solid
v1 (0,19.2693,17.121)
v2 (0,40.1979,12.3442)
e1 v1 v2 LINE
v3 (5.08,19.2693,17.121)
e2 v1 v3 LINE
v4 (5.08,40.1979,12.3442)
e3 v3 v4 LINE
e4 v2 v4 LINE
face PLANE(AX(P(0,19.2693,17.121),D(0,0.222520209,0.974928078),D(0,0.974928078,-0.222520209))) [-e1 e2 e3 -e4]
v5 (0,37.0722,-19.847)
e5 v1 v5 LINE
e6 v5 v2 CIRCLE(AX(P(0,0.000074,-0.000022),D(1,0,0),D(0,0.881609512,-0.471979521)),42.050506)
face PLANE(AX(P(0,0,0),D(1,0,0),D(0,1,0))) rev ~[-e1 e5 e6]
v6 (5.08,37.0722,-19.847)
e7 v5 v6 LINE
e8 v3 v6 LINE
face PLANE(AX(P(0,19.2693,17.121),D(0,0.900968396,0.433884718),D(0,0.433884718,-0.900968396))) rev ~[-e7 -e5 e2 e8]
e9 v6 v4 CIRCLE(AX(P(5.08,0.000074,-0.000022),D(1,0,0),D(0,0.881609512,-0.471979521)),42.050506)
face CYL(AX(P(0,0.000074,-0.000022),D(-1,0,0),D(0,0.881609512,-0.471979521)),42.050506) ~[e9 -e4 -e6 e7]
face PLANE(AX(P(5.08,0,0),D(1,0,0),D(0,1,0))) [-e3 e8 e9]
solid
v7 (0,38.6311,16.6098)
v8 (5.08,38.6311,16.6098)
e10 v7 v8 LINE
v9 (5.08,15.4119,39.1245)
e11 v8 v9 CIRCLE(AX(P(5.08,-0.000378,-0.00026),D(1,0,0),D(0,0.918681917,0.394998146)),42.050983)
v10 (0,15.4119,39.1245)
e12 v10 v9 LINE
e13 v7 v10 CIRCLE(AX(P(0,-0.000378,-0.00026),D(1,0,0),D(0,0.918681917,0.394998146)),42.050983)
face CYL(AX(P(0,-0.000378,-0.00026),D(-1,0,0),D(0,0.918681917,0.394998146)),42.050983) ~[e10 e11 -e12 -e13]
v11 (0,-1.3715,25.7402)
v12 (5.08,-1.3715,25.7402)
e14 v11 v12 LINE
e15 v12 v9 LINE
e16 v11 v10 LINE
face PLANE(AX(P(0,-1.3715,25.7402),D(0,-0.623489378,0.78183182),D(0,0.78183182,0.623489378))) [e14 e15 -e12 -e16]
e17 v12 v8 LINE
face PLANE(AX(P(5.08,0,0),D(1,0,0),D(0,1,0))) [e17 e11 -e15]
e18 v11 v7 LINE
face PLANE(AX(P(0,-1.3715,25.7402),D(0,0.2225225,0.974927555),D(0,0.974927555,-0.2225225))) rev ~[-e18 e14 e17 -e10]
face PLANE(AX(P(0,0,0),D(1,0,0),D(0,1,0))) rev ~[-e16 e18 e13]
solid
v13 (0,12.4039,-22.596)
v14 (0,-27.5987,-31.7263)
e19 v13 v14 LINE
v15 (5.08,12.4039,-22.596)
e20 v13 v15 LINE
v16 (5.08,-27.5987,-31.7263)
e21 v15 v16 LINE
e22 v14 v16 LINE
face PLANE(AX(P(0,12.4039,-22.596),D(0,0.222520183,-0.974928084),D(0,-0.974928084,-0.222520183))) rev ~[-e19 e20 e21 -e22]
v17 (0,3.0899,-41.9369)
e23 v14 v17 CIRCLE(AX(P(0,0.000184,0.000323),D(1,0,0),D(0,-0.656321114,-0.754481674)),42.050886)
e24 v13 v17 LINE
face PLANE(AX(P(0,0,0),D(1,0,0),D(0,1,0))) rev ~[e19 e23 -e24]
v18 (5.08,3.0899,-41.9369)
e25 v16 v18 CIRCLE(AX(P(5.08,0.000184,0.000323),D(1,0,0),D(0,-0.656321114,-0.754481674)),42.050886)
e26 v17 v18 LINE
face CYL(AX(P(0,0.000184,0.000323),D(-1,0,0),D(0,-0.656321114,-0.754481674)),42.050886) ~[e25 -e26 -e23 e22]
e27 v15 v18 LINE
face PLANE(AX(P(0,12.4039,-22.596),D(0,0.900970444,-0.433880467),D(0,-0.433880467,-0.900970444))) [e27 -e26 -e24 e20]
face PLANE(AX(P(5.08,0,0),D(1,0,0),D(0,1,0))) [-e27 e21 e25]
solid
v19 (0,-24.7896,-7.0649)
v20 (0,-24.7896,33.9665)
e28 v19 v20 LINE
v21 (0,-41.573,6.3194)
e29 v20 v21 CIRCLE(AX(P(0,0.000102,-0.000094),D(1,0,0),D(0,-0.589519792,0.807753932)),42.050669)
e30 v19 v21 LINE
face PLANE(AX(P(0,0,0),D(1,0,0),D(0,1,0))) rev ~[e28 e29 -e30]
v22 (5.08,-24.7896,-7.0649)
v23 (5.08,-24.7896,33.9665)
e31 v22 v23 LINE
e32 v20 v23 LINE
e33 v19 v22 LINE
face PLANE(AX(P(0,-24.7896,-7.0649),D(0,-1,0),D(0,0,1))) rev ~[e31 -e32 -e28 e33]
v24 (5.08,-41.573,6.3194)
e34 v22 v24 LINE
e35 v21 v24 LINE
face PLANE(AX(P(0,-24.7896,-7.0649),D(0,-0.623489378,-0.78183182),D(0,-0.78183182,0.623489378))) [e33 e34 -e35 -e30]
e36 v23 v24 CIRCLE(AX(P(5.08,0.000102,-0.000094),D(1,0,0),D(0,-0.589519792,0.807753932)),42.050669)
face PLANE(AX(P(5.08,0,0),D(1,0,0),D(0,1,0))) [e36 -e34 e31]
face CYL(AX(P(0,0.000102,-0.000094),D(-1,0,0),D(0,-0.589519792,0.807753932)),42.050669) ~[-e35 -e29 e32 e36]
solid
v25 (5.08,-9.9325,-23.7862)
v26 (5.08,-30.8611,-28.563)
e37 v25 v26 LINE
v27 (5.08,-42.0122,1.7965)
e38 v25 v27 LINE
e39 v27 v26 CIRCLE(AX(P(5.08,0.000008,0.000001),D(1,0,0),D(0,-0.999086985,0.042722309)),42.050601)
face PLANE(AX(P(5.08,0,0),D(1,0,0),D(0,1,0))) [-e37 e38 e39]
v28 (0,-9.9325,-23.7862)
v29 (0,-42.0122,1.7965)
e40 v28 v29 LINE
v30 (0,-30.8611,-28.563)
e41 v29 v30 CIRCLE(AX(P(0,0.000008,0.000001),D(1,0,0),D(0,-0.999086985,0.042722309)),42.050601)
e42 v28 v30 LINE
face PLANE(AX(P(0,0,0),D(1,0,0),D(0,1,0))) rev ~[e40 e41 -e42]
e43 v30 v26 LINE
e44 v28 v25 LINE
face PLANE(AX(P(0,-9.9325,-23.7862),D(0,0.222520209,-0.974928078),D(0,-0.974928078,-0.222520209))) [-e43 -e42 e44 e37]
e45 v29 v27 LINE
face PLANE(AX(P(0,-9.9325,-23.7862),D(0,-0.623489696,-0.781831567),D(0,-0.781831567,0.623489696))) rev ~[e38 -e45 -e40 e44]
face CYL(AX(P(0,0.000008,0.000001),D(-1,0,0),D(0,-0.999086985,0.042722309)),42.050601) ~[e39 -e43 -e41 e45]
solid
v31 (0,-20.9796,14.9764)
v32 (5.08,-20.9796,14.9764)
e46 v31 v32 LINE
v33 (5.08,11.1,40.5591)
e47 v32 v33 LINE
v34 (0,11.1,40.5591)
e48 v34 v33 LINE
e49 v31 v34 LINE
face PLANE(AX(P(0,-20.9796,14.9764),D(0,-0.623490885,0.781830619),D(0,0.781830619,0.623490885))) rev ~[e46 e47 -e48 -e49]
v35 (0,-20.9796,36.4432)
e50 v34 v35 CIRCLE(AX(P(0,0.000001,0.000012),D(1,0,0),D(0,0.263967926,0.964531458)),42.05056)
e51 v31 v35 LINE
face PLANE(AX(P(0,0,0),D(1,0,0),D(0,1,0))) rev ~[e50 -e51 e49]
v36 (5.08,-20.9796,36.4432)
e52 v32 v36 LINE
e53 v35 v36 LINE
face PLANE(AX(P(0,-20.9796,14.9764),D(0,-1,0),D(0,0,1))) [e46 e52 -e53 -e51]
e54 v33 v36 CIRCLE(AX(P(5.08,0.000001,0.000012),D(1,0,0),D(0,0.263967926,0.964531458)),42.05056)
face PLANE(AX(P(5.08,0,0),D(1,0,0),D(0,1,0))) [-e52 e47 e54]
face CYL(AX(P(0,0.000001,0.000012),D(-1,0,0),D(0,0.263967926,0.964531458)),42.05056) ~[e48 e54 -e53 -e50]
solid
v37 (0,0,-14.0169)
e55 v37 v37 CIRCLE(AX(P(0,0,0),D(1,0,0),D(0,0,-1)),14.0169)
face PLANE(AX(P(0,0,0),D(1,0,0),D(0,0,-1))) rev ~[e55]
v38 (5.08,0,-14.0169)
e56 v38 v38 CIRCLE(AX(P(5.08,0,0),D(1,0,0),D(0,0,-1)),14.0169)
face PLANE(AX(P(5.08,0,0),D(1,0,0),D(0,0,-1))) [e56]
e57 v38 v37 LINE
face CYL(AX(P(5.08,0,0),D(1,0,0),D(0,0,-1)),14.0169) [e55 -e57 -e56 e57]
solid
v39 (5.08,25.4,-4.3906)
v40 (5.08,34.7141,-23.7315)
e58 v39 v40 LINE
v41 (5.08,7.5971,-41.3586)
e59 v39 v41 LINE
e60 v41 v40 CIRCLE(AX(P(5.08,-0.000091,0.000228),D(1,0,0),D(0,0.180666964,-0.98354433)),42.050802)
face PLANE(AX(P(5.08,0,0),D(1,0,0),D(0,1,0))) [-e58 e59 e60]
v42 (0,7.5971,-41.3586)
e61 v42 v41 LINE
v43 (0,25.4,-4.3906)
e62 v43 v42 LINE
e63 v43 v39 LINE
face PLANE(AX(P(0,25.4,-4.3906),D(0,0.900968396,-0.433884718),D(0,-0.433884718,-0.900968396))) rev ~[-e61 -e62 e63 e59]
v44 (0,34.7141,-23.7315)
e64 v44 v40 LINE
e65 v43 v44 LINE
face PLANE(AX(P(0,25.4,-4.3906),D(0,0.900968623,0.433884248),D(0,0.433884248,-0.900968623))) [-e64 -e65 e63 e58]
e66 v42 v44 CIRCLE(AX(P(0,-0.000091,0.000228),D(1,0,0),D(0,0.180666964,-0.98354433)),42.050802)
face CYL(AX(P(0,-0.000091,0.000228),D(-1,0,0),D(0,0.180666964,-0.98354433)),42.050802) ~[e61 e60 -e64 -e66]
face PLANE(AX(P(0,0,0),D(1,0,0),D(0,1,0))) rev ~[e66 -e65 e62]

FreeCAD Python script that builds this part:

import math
import FreeCAD as App
import Part
import Sketcher
Q = App.Units.Quantity

doc = App.newDocument("Part")
body = doc.addObject("PartDesign::Body", "Body")
body.AllowCompound = True

sketch1 = body.newObject("Sketcher::SketchObject", "Sketch")
sketch1.AttachmentSupport = (doc.getObject("YZ_Plane"), [""])
sketch1.MapMode = "FlatFace"
sketch1.addGeometry(Part.LineSegment(App.Vector(-42, 6, 0), App.Vector(-25, -7, 0)), False)
sketch1.addGeometry(Part.LineSegment(App.Vector(-25, -7, 0), App.Vector(-25, 34, 0)), False)
sketch1.addGeometry(Part.ArcOfCircle(Part.Circle(App.Vector(0, 0, 0), App.Vector(0, 0, 1), 42), math.radians(126), math.radians(171)), False)
sketch1.addGeometry(Part.LineSegment(App.Vector(-31, -29, 0), App.Vector(-10, -24, 0)), False)
sketch1.addGeometry(Part.LineSegment(App.Vector(-10, -24, 0), App.Vector(-42, 2, 0)), False)
sketch1.addGeometry(Part.ArcOfCircle(Part.Circle(App.Vector(0, 0, 0), App.Vector(0, 0, 1), 42), math.radians(178), math.radians(223)), False)
sketch1.addGeometry(Part.LineSegment(App.Vector(3, -42, 0), App.Vector(12, -23, 0)), False)
sketch1.addGeometry(Part.LineSegment(App.Vector(12, -23, 0), App.Vector(-28, -32, 0)), False)
sketch1.addGeometry(Part.ArcOfCircle(Part.Circle(App.Vector(0, 0, 0), App.Vector(0, 0, 1), 42), math.radians(-131), math.radians(-86)), False)
sketch1.addGeometry(Part.LineSegment(App.Vector(35, -24, 0), App.Vector(25, -4, 0)), False)
sketch1.addGeometry(Part.LineSegment(App.Vector(25, -4, 0), App.Vector(8, -41, 0)), False)
sketch1.addGeometry(Part.ArcOfCircle(Part.Circle(App.Vector(0, 0, 0), App.Vector(0, 0, 1), 42), math.radians(-80), math.radians(-34)), False)
sketch1.addGeometry(Part.LineSegment(App.Vector(40, 12, 0), App.Vector(19, 17, 0)), False)
sketch1.addGeometry(Part.LineSegment(App.Vector(19, 17, 0), App.Vector(37, -20, 0)), False)
sketch1.addGeometry(Part.ArcOfCircle(Part.Circle(App.Vector(0, 0, 0), App.Vector(0, 0, 1), 42), math.radians(-28), math.radians(17)), False)
sketch1.addGeometry(Part.LineSegment(App.Vector(15, 39, 0), App.Vector(-1, 26, 0)), False)
sketch1.addGeometry(Part.LineSegment(App.Vector(-1, 26, 0), App.Vector(39, 17, 0)), False)
sketch1.addGeometry(Part.ArcOfCircle(Part.Circle(App.Vector(0, 0, 0), App.Vector(0, 0, 1), 42), math.radians(23), math.radians(68)), False)
sketch1.addGeometry(Part.LineSegment(App.Vector(-21, 36, 0), App.Vector(-21, 15, 0)), False)
sketch1.addGeometry(Part.LineSegment(App.Vector(-21, 15, 0), App.Vector(11, 41, 0)), False)
sketch1.addGeometry(Part.ArcOfCircle(Part.Circle(App.Vector(0, 0, 0), App.Vector(0, 0, 1), 42), math.radians(75), math.radians(120)), False)
sketch1.addConstraint(Sketcher.Constraint("Coincident", 0, 2, 1, 1))
sketch1.addConstraint(Sketcher.Constraint("Coincident", 1, 2, 2, 1))
sketch1.addConstraint(Sketcher.Constraint("Coincident", 2, 2, 0, 1))
sketch1.addConstraint(Sketcher.Constraint("Coincident", 3, 2, 4, 1))
sketch1.addConstraint(Sketcher.Constraint("Coincident", 4, 2, 5, 1))
sketch1.addConstraint(Sketcher.Constraint("Coincident", 5, 2, 3, 1))
sketch1.addConstraint(Sketcher.Constraint("Coincident", 6, 2, 7, 1))
sketch1.addConstraint(Sketcher.Constraint("Coincident", 7, 2, 8, 1))
sketch1.addConstraint(Sketcher.Constraint("Coincident", 8, 2, 6, 1))
sketch1.addConstraint(Sketcher.Constraint("Coincident", 9, 2, 10, 1))
sketch1.addConstraint(Sketcher.Constraint("Coincident", 10, 2, 11, 1))
sketch1.addConstraint(Sketcher.Constraint("Coincident", 11, 2, 9, 1))
sketch1.addConstraint(Sketcher.Constraint("Coincident", 12, 2, 13, 1))
sketch1.addConstraint(Sketcher.Constraint("Coincident", 13, 2, 14, 1))
sketch1.addConstraint(Sketcher.Constraint("Coincident", 14, 2, 12, 1))
sketch1.addConstraint(Sketcher.Constraint("Coincident", 15, 2, 16, 1))
sketch1.addConstraint(Sketcher.Constraint("Coincident", 16, 2, 17, 1))
sketch1.addConstraint(Sketcher.Constraint("Coincident", 17, 2, 15, 1))
sketch1.addConstraint(Sketcher.Constraint("Coincident", 18, 2, 19, 1))
sketch1.addConstraint(Sketcher.Constraint("Coincident", 19, 2, 20, 1))
sketch1.addConstraint(Sketcher.Constraint("Coincident", 20, 2, 18, 1))
sketch1.addConstraint(Sketcher.Constraint("Vertical", 1))
sketch1.addConstraint(Sketcher.Constraint("Vertical", 18))
sketch1.addConstraint(Sketcher.Constraint("Coincident", 2, 3, -1, 1))
sketch1.addConstraint(Sketcher.Constraint("Coincident", 5, 3, -1, 1))
sketch1.addConstraint(Sketcher.Constraint("Coincident", 8, 3, -1, 1))
sketch1.addConstraint(Sketcher.Constraint("Coincident", 11, 3, -1, 1))
sketch1.addConstraint(Sketcher.Constraint("Coincident", 14, 3, -1, 1))
sketch1.addConstraint(Sketcher.Constraint("Coincident", 17, 3, -1, 1))
sketch1.addConstraint(Sketcher.Constraint("Coincident", 20, 3, -1, 1))
sketch1.addConstraint(Sketcher.Constraint("Equal", 2, 5))
sketch1.addConstraint(Sketcher.Constraint("Equal", 5, 8))
sketch1.addConstraint(Sketcher.Constraint("Equal", 8, 11))
sketch1.addConstraint(Sketcher.Constraint("Equal", 11, 14))
sketch1.addConstraint(Sketcher.Constraint("Equal", 14, 17))
sketch1.addConstraint(Sketcher.Constraint("Equal", 17, 20))
sketch1.addConstraint(Sketcher.Constraint("Parallel", 0, 4))
sketch1.addConstraint(Sketcher.Constraint("Parallel", 3, 7))
sketch1.addConstraint(Sketcher.Constraint("Parallel", 6, 10))
sketch1.addConstraint(Sketcher.Constraint("Parallel", 9, 13))
sketch1.addConstraint(Sketcher.Constraint("Parallel", 12, 16))
sketch1.addConstraint(Sketcher.Constraint("Parallel", 15, 19))
sketch1.addConstraint(Sketcher.Constraint("Equal", 0, 3))
sketch1.addConstraint(Sketcher.Constraint("Equal", 3, 6))
sketch1.addConstraint(Sketcher.Constraint("Equal", 4, 7))
sketch1.addConstraint(Sketcher.Constraint("Equal", 6, 9))
sketch1.addConstraint(Sketcher.Constraint("Equal", 7, 10))
sketch1.addConstraint(Sketcher.Constraint("Equal", 9, 12))
sketch1.addConstraint(Sketcher.Constraint("Equal", 10, 13))
sketch1.addConstraint(Sketcher.Constraint("Equal", 12, 15))
sketch1.addConstraint(Sketcher.Constraint("Equal", 13, 16))
sketch1.addConstraint(Sketcher.Constraint("Equal", 16, 19))
sketch1.addConstraint(Sketcher.Constraint("DistanceX", -1, 1, 9, 2, Q("1 in")))
sketch1.addConstraint(Sketcher.Constraint("Radius", 2, 42.0506))
sketch1.addConstraint(Sketcher.Constraint("DistanceX", 1, 2, 18, 2, Q("0.15 in")))
sketch1.addConstraint(Sketcher.Constraint("DistanceY", 1, 1, 1, 2, Q("1.6154 in")))
sketch1.addConstraint(Sketcher.Constraint("DistanceX", 5, 2, -1, 1, Q("1.215 in")))
sketch1.addConstraint(Sketcher.Constraint("DistanceY", -1, 1, 14, 2, Q("0.486 in")))
sketch1.addConstraint(Sketcher.Constraint("DistanceX", 15, 2, -1, 1, Q("0.054 in")))
sketch1.addConstraint(Sketcher.Constraint("DistanceX", -1, 1, 19, 2, Q("0.437 in")))
sketch1.addConstraint(Sketcher.Constraint("DistanceY", 8, 2, 7, 2, Q("0.402 in")))
sketch1.addConstraint(Sketcher.Constraint("Distance", 7, Q("1.6154 in")))
sketch1.addConstraint(Sketcher.Constraint("DistanceY", 18, 2, 18, 1, 21.4668))
pad1 = body.newObject("PartDesign::Pad", "Pad")
pad1.Profile = sketch1
pad1.Length = Q("0.2 in")

sketch2 = body.newObject("Sketcher::SketchObject", "Sketch001")
sketch2.AttachmentSupport = (doc.getObject("YZ_Plane"), [""])
sketch2.MapMode = "FlatFace"
sketch2.AttachmentOffset = App.Placement(App.Vector(0, 0, 0.2 * 25.4), App.Rotation())
sketch2.addGeometry(Part.Circle(App.Vector(0, 0, 0), App.Vector(0, 0, 1), 14), False)
sketch2.addConstraint(Sketcher.Constraint("Coincident", 0, 3, -1, 1))
sketch2.addConstraint(Sketcher.Constraint("Diameter", 0, Q("1.1037 in")))
pad2 = body.newObject("PartDesign::Pad", "Pad001")
pad2.Profile = sketch2
pad2.Length = Q("0.2 in")
pad2.Reversed = True

doc.recompute()
